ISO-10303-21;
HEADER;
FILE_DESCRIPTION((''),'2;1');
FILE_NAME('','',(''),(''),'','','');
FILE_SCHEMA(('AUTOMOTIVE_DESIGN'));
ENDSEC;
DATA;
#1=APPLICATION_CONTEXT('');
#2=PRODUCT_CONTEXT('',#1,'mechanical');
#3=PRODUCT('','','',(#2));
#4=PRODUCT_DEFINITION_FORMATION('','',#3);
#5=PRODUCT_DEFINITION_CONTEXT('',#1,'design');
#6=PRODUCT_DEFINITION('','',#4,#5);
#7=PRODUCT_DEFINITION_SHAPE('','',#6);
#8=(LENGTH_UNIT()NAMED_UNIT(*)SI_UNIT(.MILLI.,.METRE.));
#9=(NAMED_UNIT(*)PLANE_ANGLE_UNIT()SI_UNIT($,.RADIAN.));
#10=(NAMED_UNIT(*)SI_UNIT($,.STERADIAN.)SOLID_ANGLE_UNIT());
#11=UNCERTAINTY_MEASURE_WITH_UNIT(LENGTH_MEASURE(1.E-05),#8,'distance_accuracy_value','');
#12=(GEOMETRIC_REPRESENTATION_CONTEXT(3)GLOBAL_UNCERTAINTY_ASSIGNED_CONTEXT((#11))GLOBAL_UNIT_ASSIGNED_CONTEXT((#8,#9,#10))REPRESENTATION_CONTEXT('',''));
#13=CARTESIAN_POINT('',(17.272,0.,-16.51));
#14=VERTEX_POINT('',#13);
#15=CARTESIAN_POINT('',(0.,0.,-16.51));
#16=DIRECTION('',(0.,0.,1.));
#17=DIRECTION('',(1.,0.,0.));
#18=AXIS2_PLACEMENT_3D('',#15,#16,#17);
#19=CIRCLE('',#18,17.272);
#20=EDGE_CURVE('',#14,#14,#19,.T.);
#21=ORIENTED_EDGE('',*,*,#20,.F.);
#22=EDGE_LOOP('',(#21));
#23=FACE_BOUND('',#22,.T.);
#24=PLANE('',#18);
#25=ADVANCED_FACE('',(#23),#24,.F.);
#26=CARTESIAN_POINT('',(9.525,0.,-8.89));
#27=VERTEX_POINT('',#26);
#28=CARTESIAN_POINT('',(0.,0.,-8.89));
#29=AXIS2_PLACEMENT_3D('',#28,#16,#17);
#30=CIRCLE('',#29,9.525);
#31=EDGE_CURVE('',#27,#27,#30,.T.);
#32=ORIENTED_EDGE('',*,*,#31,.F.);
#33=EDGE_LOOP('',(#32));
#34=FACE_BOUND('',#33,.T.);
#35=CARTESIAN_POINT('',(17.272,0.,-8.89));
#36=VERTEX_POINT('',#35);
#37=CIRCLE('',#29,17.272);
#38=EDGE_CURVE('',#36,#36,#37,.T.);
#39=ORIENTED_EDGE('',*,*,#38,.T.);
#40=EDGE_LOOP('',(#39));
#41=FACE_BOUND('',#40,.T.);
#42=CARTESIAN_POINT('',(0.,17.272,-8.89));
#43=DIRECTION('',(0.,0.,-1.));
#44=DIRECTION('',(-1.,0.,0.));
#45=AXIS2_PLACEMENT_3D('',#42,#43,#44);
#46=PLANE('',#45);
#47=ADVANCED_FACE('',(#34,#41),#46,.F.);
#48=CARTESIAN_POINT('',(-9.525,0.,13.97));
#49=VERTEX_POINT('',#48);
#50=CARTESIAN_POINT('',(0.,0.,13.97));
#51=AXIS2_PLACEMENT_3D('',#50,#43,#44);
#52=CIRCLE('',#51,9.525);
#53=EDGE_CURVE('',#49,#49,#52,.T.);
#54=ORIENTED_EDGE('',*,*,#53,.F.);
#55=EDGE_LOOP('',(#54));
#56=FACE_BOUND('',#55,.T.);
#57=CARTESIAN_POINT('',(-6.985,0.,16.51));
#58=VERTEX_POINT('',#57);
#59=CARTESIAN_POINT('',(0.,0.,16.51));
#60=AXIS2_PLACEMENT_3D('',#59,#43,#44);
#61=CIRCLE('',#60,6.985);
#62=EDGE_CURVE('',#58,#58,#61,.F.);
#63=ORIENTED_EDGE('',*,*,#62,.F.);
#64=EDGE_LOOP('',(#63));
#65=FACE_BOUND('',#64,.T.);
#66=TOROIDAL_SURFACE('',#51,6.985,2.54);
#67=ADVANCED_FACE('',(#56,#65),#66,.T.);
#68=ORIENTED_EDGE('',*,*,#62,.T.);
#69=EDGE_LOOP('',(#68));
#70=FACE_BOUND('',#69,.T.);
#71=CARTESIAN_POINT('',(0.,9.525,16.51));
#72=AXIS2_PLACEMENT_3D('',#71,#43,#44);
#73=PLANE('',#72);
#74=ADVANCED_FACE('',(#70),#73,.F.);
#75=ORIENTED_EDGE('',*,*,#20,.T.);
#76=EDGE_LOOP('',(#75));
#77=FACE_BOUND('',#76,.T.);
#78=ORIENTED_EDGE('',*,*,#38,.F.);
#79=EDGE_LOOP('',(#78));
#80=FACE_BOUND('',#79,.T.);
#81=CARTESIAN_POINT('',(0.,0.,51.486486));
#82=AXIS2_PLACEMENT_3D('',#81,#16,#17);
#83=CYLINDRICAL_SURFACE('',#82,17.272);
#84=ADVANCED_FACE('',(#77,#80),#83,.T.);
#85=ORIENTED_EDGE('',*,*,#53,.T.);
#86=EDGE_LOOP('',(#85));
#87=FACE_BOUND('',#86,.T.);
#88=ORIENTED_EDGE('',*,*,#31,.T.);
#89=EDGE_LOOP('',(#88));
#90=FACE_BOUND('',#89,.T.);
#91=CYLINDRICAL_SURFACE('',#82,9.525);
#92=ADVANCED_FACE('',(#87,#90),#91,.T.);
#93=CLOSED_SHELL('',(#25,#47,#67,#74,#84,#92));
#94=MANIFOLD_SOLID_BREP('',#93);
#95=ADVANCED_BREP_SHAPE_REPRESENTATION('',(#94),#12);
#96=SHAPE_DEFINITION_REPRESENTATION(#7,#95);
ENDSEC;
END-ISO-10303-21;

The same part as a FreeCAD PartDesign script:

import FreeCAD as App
import Part
import Sketcher
from FreeCAD import Vector
Q = App.Units.Quantity


def edges_at(feature, points):
    """Names of the edges that pass closest to the given points."""
    edges = feature.Shape.Edges
    near = lambda p: min(range(len(edges)), key=lambda i: edges[i].distToShape(Part.Vertex(*p))[0])
    return sorted({f"Edge{near(p) + 1}" for p in points})


def add_polygon(sketch, points):
    """Adds a closed chain of lines whose ends are joined by coincident constraints."""
    first, n = sketch.GeometryCount, len(points)
    for a, b in zip(points, points[1:] + points[:1]):
        sketch.addGeometry(Part.LineSegment(App.Vector(*a, 0), App.Vector(*b, 0)), False)
    for i in range(n):
        sketch.addConstraint(Sketcher.Constraint("Coincident", first + i, 2, first + (i + 1) % n, 1))

doc = App.newDocument("Part")
body = doc.addObject("PartDesign::Body", "Body")

# Sketch on YZ plane
sketch1 = body.newObject("Sketcher::SketchObject", "Sketch")
sketch1.AttachmentSupport = (doc.getObject("YZ_Plane"), [""])
sketch1.MapMode = "FlatFace"
add_polygon(sketch1, [(0, -17), (17, -17), (17, -9), (10, -9), (10, 17), (0, 17)])  # lines 0-5
sketch1.addConstraint(Sketcher.Constraint("Horizontal", 0))
sketch1.addConstraint(Sketcher.Constraint("Vertical", 1))
sketch1.addConstraint(Sketcher.Constraint("Horizontal", 2))
sketch1.addConstraint(Sketcher.Constraint("Vertical", 3))
sketch1.addConstraint(Sketcher.Constraint("Horizontal", 4))
sketch1.addConstraint(Sketcher.Constraint("Vertical", 5))
sketch1.addConstraint(Sketcher.Constraint("Symmetric", 4, 2, 5, 2, -1, 1))
sketch1.addConstraint(Sketcher.Constraint("DistanceY", 3, 1, 3, 2, Q("1 in")))
sketch1.addConstraint(Sketcher.Constraint("DistanceY", 1, 1, 1, 2, Q("0.3 in")))
sketch1.addConstraint(Sketcher.Constraint("DistanceX", 0, 1, 0, 2, Q("0.68 in")))
sketch1.addConstraint(Sketcher.Constraint("DistanceX", 2, 2, 2, 1, Q("0.305 in")))
revolution = body.newObject("PartDesign::Revolution", "Revolution")
revolution.Profile = sketch1
revolution.ReferenceAxis = (sketch1, ["V_Axis"])
revolution.Angle = 360
doc.recompute()

fillet = body.newObject("PartDesign::Fillet", "Fillet")
fillet.Base = (revolution, edges_at(revolution, [(-9.525, 0, 16.51)]))
fillet.Radius = Q("0.1 in")

doc.recompute()
